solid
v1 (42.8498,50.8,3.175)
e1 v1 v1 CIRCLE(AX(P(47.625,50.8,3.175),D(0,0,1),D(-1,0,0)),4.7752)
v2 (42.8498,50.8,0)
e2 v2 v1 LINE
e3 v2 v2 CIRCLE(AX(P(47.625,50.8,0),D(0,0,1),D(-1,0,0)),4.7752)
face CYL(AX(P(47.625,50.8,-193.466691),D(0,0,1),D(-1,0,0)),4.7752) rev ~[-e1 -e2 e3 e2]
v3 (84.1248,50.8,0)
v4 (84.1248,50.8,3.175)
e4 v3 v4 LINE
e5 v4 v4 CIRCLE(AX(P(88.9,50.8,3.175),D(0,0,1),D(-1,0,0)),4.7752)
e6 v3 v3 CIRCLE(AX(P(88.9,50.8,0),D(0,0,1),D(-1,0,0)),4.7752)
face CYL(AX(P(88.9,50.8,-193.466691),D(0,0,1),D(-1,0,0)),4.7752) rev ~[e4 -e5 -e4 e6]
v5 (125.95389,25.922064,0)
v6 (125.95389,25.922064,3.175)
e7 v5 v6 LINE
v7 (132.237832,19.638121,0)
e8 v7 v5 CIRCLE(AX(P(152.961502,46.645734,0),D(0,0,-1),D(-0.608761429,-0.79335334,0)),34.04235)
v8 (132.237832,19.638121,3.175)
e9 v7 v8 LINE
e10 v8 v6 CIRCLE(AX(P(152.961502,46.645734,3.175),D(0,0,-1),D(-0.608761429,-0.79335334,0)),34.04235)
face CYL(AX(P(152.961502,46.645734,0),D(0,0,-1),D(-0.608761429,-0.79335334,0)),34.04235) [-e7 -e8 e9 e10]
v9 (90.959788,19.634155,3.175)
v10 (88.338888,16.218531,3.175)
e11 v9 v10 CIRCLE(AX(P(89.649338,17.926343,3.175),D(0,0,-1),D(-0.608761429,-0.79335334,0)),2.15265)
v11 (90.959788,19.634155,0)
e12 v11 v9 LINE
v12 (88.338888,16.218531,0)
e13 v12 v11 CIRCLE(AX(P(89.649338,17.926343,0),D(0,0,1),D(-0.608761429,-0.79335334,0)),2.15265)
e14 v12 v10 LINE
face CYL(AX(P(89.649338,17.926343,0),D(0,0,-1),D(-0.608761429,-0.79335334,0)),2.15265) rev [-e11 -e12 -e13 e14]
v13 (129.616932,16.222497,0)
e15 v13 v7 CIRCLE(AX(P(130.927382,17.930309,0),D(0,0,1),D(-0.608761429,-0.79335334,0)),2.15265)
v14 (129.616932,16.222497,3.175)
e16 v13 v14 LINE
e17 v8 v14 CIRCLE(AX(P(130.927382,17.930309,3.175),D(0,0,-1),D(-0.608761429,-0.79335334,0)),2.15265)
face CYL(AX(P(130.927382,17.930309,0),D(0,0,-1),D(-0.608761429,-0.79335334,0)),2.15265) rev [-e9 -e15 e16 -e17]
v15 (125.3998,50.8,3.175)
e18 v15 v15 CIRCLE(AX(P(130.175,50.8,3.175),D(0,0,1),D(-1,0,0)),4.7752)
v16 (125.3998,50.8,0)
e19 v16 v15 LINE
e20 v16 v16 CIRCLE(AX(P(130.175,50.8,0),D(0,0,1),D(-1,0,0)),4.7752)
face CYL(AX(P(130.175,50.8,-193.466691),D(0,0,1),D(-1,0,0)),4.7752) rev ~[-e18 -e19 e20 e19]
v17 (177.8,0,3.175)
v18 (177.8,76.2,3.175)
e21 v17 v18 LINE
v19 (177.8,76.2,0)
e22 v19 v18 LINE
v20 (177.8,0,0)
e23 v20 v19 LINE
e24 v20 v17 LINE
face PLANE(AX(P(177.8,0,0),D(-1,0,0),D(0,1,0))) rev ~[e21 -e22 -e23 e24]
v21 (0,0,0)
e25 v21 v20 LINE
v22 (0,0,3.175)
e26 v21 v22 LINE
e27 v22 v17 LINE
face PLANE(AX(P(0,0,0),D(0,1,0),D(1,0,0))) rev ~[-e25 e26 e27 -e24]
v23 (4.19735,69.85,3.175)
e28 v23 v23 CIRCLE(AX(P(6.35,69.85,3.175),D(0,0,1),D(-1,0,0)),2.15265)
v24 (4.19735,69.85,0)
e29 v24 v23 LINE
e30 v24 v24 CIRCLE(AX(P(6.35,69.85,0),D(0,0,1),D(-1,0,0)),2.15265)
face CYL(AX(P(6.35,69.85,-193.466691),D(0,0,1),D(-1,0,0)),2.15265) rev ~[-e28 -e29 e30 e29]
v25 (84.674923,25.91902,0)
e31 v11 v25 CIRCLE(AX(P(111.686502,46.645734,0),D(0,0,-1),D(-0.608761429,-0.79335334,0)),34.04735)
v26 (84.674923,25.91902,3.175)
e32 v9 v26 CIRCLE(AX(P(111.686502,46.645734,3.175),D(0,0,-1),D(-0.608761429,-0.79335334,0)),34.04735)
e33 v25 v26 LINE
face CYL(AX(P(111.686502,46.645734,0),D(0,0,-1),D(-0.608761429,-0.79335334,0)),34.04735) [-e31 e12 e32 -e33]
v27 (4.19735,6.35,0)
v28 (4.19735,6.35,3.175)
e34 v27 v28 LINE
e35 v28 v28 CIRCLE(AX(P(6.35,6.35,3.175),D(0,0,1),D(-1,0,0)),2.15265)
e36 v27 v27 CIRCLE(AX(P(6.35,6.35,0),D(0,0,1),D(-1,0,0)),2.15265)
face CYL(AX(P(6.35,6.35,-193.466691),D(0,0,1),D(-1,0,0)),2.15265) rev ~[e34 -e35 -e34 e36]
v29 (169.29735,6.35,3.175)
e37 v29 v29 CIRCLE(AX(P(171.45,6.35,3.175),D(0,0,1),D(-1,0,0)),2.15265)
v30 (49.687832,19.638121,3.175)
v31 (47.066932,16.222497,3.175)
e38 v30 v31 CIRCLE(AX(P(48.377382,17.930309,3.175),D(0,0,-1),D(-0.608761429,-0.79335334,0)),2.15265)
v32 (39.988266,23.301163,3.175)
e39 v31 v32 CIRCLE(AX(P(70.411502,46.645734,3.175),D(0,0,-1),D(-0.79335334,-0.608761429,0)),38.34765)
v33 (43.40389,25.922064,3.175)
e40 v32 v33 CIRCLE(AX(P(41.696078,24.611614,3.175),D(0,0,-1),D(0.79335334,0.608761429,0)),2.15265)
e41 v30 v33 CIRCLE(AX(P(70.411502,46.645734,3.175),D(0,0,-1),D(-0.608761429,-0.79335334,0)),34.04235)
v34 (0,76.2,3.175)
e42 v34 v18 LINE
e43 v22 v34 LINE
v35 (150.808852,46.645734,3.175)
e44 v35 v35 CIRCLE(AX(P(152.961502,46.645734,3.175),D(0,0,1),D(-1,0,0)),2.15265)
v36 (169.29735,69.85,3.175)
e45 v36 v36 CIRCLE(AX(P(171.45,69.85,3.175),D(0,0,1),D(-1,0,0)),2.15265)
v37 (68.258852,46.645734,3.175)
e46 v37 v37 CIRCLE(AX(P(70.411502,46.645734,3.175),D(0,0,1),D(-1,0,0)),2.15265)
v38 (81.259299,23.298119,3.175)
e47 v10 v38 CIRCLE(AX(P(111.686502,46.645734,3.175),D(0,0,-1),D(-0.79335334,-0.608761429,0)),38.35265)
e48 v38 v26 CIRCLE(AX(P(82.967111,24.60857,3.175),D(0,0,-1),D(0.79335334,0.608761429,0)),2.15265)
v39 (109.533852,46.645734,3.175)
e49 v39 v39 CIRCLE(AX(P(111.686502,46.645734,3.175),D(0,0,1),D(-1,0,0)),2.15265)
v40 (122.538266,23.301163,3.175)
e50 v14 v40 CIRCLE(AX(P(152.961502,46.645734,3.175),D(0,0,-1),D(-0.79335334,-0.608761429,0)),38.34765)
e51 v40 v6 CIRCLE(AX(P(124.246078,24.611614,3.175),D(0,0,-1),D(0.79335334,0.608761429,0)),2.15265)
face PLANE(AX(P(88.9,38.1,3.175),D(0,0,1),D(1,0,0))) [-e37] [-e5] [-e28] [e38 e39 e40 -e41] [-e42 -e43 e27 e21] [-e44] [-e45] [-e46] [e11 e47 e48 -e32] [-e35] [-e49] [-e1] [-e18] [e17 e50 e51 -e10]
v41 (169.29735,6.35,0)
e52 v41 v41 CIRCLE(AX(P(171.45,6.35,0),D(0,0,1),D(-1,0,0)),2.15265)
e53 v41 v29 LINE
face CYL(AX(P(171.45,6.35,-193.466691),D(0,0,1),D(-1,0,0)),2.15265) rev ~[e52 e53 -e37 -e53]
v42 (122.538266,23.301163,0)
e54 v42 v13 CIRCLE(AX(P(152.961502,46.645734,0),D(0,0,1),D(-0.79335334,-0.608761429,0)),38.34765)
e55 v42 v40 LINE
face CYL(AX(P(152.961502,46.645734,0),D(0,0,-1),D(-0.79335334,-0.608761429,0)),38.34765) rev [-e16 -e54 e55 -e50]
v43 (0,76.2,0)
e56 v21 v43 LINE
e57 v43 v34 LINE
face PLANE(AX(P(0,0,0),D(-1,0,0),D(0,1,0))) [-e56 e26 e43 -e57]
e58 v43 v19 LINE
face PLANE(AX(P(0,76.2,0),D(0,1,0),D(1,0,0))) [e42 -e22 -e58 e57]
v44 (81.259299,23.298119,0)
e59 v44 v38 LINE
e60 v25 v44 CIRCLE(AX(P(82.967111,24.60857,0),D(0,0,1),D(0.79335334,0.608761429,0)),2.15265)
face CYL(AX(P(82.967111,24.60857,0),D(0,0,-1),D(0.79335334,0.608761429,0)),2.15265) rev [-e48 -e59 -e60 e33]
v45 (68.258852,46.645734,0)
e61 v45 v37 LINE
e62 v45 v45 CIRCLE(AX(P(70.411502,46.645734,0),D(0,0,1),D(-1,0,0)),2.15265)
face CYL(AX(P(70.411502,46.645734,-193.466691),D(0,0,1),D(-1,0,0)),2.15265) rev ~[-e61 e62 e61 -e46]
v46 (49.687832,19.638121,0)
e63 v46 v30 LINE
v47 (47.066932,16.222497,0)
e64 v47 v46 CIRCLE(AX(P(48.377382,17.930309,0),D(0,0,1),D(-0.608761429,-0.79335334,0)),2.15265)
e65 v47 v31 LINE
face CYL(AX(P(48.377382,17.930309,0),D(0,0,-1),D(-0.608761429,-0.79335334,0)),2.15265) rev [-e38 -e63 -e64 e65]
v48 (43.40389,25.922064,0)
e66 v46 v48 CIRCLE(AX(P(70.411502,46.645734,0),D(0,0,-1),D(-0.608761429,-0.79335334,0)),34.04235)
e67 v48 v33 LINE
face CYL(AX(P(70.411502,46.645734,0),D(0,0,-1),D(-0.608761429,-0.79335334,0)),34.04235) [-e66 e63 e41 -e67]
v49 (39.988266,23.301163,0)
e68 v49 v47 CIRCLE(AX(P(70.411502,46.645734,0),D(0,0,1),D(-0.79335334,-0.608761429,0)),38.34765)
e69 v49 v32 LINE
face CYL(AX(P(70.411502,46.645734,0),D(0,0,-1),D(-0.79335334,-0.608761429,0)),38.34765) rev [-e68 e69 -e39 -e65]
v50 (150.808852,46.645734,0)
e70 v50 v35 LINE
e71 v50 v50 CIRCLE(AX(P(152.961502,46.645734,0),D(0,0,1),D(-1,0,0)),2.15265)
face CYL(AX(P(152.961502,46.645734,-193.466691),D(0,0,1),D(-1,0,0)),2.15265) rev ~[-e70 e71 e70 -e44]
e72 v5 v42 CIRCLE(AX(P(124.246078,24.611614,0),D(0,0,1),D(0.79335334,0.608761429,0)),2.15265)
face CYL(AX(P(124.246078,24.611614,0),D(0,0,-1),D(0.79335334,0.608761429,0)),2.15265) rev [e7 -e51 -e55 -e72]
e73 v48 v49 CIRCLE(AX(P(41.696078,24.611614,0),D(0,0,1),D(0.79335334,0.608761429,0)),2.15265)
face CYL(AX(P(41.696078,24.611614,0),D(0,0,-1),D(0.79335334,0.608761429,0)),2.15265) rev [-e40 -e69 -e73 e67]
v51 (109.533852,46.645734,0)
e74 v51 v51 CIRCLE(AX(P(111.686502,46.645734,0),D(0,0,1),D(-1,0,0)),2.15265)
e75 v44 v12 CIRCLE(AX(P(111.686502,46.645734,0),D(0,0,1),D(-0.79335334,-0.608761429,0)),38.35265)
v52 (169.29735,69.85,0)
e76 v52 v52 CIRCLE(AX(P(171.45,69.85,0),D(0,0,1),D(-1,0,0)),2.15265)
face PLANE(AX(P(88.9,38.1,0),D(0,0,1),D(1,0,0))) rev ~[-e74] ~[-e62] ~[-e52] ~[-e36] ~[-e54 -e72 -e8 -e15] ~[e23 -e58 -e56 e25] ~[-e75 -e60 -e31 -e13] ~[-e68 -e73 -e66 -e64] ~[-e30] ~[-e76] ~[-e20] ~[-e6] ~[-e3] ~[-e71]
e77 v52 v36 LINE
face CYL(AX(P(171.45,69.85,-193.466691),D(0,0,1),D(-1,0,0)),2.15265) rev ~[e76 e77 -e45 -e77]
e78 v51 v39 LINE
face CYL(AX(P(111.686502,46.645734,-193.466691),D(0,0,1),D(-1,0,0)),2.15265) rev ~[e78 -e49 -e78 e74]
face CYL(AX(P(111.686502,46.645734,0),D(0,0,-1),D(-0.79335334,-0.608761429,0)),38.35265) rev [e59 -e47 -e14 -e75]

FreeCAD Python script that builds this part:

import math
import FreeCAD as App
import Part
import Sketcher
from FreeCAD import Vector
Q = App.Units.Quantity


def add_polygon(sketch, points):
    """Adds a closed chain of lines whose ends are joined by coincident constraints."""
    first, n = sketch.GeometryCount, len(points)
    for a, b in zip(points, points[1:] + points[:1]):
        sketch.addGeometry(Part.LineSegment(App.Vector(*a, 0), App.Vector(*b, 0)), False)
    for i in range(n):
        sketch.addConstraint(Sketcher.Constraint("Coincident", first + i, 2, first + (i + 1) % n, 1))

doc = App.newDocument("Part")
body = doc.addObject("PartDesign::Body", "Body")

sketch1 = doc.addObject("Sketcher::SketchObject", "Sketch")
body.addObject(sketch1)
sketch1.AttachmentSupport = (doc.XY_Plane, [""])
sketch1.MapMode = "FlatFace"
add_polygon(sketch1, [(0, 76), (0, 0), (178, 0), (178, 76)])
sketch1.addConstraint([
    Sketcher.Constraint("Vertical", 0),
    Sketcher.Constraint("Horizontal", 1),
    Sketcher.Constraint("Vertical", 2),
    Sketcher.Constraint("Horizontal", 3),
    Sketcher.Constraint("Coincident", 0, 2, -1, 1),
    Sketcher.Constraint("DistanceX", 1, 1, 1, 2, Q("7 in")),
    Sketcher.Constraint("DistanceY", 0, 2, 0, 1, Q("3 in")),
])
pad1 = doc.addObject("PartDesign::Pad", "Pad")
body.addObject(pad1)
pad1.Profile = sketch1
pad1.Length = Q("0.125 in")

sketch2 = doc.addObject("Sketcher::SketchObject", "Sketch001")
body.addObject(sketch2)
sketch2.AttachmentSupport = (doc.XY_Plane, [""])
sketch2.MapMode = "FlatFace"
sketch2.addGeometry([
    Part.ArcOfCircle(Part.Circle(Vector(48.4, 17.9, 0), Vector(0, 0, 1), 2.2), math.radians(-128), math.radians(53)),
    Part.ArcOfCircle(Part.Circle(Vector(70.4, 46.6, 0), Vector(0, 0, 1), 34), math.radians(-142.5), math.radians(-127.5)),
    Part.ArcOfCircle(Part.Circle(Vector(41.7, 24.6, 0), Vector(0, 0, 1), 2.2), math.radians(38), math.radians(217)),
    Part.ArcOfCircle(Part.Circle(Vector(70.4, 46.6, 0), Vector(0, 0, 1), 38.3), math.radians(-142.5), math.radians(-127.5)),
    Part.ArcOfCircle(Part.Circle(Vector(89.6, 17.9, 0), Vector(0, 0, 1), 2.2), math.radians(-128), math.radians(53)),
    Part.ArcOfCircle(Part.Circle(Vector(111.7, 46.6, 0), Vector(0, 0, 1), 34), math.radians(-142.5), math.radians(-127.5)),
    Part.ArcOfCircle(Part.Circle(Vector(83, 24.6, 0), Vector(0, 0, 1), 2.2), math.radians(37), math.radians(217)),
    Part.ArcOfCircle(Part.Circle(Vector(111.7, 46.6, 0), Vector(0, 0, 1), 38.4), math.radians(-142.5), math.radians(-127.5)),
    Part.ArcOfCircle(Part.Circle(Vector(130.9, 17.9, 0), Vector(0, 0, 1), 2.2), math.radians(-127), math.radians(53)),
    Part.ArcOfCircle(Part.Circle(Vector(153, 46.6, 0), Vector(0, 0, 1), 34), math.radians(-142.5), math.radians(-127.5)),
    Part.ArcOfCircle(Part.Circle(Vector(124.2, 24.6, 0), Vector(0, 0, 1), 2.2), math.radians(38), math.radians(217)),
    Part.ArcOfCircle(Part.Circle(Vector(153, 46.6, 0), Vector(0, 0, 1), 38.3), math.radians(-142.5), math.radians(-127.5)),
], False)
sketch2.addConstraint([
    Sketcher.Constraint("Tangent", 0, 2, 1, 2),
    Sketcher.Constraint("Tangent", 1, 1, 2, 1),
    Sketcher.Constraint("Tangent", 2, 2, 3, 1),
    Sketcher.Constraint("Tangent", 3, 2, 0, 1),
    Sketcher.Constraint("Tangent", 4, 2, 5, 2),
    Sketcher.Constraint("Tangent", 5, 1, 6, 1),
    Sketcher.Constraint("Tangent", 6, 2, 7, 1),
    Sketcher.Constraint("Tangent", 7, 2, 4, 1),
    Sketcher.Constraint("Tangent", 8, 2, 9, 2),
    Sketcher.Constraint("Tangent", 9, 1, 10, 1),
    Sketcher.Constraint("Tangent", 10, 2, 11, 1),
    Sketcher.Constraint("Tangent", 11, 2, 8, 1),
    Sketcher.Constraint("Coincident", 3, 3, 1, 3),
    Sketcher.Constraint("Coincident", 7, 3, 5, 3),
    Sketcher.Constraint("Coincident", 11, 3, 9, 3),
    Sketcher.Constraint("Equal", 2, 4),
    Sketcher.Constraint("Equal", 6, 8),
    Sketcher.Constraint("Equal", 1, 9),
    Sketcher.Constraint("Horizontal", 3, 3, 5, 3),
    Sketcher.Constraint("Horizontal", 0, 3, 8, 3),
    Sketcher.Constraint("Horizontal", 7, 3, 9, 3),
    Sketcher.Constraint("Horizontal", 2, 3, 10, 3),
    Sketcher.Constraint("Radius", 0, 2.15265),
    Sketcher.Constraint("Radius", 1, 34.04235),
    Sketcher.Constraint("Radius", 5, 34.04735),
    Sketcher.Constraint("DistanceX", 1, 3, 5, 3, Q("1.625 in")),
    Sketcher.Constraint("DistanceX", 5, 3, 9, 3, Q("1.625 in")),
    Sketcher.Constraint("DistanceX", -1, 1, 1, 3, 70.411502),
    Sketcher.Constraint("DistanceX", -1, 1, 6, 2, 81.259299),
    Sketcher.Constraint("DistanceY", 2, 2, 1, 1, 2.620901),
    Sketcher.Constraint("DistanceX", 3, 2, 0, 2, 2.620901),
    Sketcher.Constraint("DistanceX", 7, 2, 4, 2, 2.620901),
    Sketcher.Constraint("DistanceY", -1, 1, 0, 3, 17.930309),
])
pocket1 = doc.addObject("PartDesign::Pocket", "Pocket")
body.addObject(pocket1)
pocket1.Profile = sketch2
pocket1.Type = "ThroughAll"
pocket1.Reversed = True

sketch3 = doc.addObject("Sketcher::SketchObject", "Sketch002")
body.addObject(sketch3)
sketch3.AttachmentSupport = (doc.XY_Plane, [""])
sketch3.MapMode = "FlatFace"
sketch3.addGeometry([
    Part.Circle(Vector(70.4, 46.6, 0), Vector(0, 0, 1), 2.2),
    Part.Circle(Vector(111.7, 46.6, 0), Vector(0, 0, 1), 2.2),
    Part.Circle(Vector(153, 46.6, 0), Vector(0, 0, 1), 2.2),
    Part.Circle(Vector(6.3, 69.8, 0), Vector(0, 0, 1), 2.2),
    Part.Circle(Vector(6.3, 6.3, 0), Vector(0, 0, 1), 2.2),
    Part.Circle(Vector(171.4, 69.8, 0), Vector(0, 0, 1), 2.2),
    Part.Circle(Vector(171.4, 6.3, 0), Vector(0, 0, 1), 2.2),
], False)
sketch3.addConstraint([
    Sketcher.Constraint("Equal", 0, 1),
    Sketcher.Constraint("Equal", 1, 2),
    Sketcher.Constraint("Equal", 2, 3),
    Sketcher.Constraint("Equal", 3, 4),
    Sketcher.Constraint("Equal", 4, 5),
    Sketcher.Constraint("Equal", 5, 6),
    Sketcher.Constraint("Horizontal", 0, 3, 1, 3),
    Sketcher.Constraint("Horizontal", 1, 3, 2, 3),
    Sketcher.Constraint("Horizontal", 3, 3, 5, 3),
    Sketcher.Constraint("Horizontal", 4, 3, 6, 3),
    Sketcher.Constraint("Vertical", 3, 3, 4, 3),
    Sketcher.Constraint("Vertical", 5, 3, 6, 3),
    Sketcher.Constraint("Diameter", 0, Q("0.1695 in")),
    Sketcher.Constraint("DistanceY", 4, 3, 3, 3, Q("2.5 in")),
    Sketcher.Constraint("DistanceX", 3, 3, 5, 3, Q("6.5 in")),
    Sketcher.Constraint("DistanceX", -1, 1, 3, 3, Q("0.25 in")),
    Sketcher.Constraint("DistanceY", -1, 1, 3, 3, Q("2.75 in")),
    Sketcher.Constraint("DistanceX", 0, 3, 2, 3, Q("3.25 in")),
    Sketcher.Constraint("DistanceX", 0, 3, 1, 3, Q("1.625 in")),
    Sketcher.Constraint("DistanceX", -1, 1, 0, 3, 70.411502),
    Sketcher.Constraint("DistanceY", -1, 1, 0, 3, 46.645734),
])
doc.recompute()
hole = doc.addObject("PartDesign::Hole", "Hole")
body.addObject(hole)
hole.Profile = sketch3
hole.ThreadType = "None"
hole.Diameter = Q("0.1695 in")
hole.DepthType = "ThroughAll"
hole.Reversed = True

sketch4 = doc.addObject("Sketcher::SketchObject", "Sketch003")
body.addObject(sketch4)
sketch4.AttachmentSupport = (doc.XY_Plane, [""])
sketch4.MapMode = "FlatFace"
sketch4.addGeometry([
    Part.Circle(Vector(47.6, 50.8, 0), Vector(0, 0, 1), 4.8),
    Part.Circle(Vector(88.9, 50.8, 0), Vector(0, 0, 1), 4.8),
    Part.Circle(Vector(130.2, 50.8, 0), Vector(0, 0, 1), 4.8),
], False)
sketch4.addConstraint([
    Sketcher.Constraint("Equal", 0, 1),
    Sketcher.Constraint("Equal", 1, 2),
    Sketcher.Constraint("Horizontal", 0, 3, 1, 3),
    Sketcher.Constraint("Horizontal", 1, 3, 2, 3),
    Sketcher.Constraint("Diameter", 0, Q("0.376 in")),
    Sketcher.Constraint("DistanceY", -1, 1, 0, 3, Q("2 in")),
    Sketcher.Constraint("DistanceX", -1, 1, 1, 3, Q("3.5 in")),
    Sketcher.Constraint("DistanceX", 0, 3, 2, 3, Q("3.25 in")),
    Sketcher.Constraint("DistanceX", -1, 1, 0, 3, Q("1.875 in")),
])
doc.recompute()
hole2 = doc.addObject("PartDesign::Hole", "Hole001")
body.addObject(hole2)
hole2.Profile = sketch4
hole2.ThreadType = "None"
hole2.Diameter = Q("0.376 in")
hole2.DepthType = "ThroughAll"
hole2.Reversed = True

doc.recompute()
